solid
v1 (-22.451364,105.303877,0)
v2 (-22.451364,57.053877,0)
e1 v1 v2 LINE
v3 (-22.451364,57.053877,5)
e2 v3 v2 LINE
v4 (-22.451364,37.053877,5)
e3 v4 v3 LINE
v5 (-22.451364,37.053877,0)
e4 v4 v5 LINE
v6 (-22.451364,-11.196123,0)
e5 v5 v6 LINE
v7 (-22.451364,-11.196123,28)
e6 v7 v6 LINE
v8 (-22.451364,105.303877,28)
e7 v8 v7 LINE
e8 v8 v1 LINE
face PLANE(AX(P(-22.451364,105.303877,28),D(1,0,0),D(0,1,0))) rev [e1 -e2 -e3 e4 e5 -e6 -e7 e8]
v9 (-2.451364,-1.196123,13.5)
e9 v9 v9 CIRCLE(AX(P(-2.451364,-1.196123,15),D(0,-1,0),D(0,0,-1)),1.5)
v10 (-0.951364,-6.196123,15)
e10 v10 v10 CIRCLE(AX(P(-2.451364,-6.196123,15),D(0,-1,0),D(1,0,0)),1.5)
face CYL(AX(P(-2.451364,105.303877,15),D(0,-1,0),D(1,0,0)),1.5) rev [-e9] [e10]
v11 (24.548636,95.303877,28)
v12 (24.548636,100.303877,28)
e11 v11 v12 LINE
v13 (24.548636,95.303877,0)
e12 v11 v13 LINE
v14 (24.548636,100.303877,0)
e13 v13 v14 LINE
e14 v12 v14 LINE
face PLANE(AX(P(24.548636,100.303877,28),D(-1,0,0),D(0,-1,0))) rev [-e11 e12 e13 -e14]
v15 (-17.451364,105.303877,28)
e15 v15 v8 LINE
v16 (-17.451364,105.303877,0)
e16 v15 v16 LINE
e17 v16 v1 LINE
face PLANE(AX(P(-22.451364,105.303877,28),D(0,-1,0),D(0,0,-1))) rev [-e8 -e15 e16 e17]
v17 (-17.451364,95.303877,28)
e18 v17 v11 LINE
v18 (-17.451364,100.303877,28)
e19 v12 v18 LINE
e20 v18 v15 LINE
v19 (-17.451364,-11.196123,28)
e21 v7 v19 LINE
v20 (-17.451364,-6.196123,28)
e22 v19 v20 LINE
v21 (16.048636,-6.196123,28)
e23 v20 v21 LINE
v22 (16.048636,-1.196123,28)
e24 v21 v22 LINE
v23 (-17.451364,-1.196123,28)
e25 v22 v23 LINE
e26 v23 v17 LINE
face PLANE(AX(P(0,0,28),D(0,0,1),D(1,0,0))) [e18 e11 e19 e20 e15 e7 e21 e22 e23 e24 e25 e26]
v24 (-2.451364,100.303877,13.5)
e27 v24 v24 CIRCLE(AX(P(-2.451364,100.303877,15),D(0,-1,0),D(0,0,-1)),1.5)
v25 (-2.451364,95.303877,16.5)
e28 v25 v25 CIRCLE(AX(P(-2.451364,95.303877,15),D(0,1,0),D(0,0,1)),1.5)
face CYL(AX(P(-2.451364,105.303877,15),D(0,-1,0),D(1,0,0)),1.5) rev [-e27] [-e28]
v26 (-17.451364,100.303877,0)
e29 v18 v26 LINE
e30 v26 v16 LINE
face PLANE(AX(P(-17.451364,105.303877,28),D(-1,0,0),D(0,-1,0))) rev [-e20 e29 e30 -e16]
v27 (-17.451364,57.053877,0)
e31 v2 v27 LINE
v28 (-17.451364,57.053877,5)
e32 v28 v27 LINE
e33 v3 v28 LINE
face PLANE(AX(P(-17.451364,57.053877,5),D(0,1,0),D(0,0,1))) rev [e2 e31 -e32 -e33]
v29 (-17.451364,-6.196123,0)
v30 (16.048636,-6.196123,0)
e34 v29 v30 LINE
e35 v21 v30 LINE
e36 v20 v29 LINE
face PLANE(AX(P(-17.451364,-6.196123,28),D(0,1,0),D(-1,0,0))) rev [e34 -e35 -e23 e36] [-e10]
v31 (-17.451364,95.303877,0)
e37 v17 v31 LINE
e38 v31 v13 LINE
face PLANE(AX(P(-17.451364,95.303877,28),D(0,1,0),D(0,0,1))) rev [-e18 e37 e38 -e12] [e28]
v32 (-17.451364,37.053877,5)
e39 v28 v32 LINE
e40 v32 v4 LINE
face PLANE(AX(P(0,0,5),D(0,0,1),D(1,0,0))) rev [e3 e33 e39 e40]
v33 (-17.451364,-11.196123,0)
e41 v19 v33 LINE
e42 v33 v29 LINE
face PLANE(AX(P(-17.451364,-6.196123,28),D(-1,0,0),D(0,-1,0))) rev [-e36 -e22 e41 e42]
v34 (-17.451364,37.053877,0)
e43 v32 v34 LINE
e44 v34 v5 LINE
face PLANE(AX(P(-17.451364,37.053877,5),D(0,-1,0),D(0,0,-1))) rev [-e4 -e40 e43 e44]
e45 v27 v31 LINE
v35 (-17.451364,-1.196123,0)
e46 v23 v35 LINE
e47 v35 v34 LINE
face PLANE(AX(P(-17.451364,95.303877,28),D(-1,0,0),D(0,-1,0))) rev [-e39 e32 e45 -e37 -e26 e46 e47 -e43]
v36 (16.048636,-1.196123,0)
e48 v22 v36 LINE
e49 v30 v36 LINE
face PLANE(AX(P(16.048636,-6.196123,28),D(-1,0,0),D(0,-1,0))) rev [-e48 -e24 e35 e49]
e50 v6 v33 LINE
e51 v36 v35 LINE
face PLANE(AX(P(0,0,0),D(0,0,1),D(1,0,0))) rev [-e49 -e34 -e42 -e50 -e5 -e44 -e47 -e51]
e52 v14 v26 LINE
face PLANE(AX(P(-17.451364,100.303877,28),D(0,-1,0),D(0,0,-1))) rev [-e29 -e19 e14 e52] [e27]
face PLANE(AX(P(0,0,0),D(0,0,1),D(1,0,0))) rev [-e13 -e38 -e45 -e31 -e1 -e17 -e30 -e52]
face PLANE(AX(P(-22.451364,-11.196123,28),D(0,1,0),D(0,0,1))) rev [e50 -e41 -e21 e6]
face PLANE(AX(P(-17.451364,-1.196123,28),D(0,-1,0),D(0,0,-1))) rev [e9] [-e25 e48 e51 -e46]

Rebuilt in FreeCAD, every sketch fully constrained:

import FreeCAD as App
import Part
import Sketcher
Q = App.Units.Quantity


def add_polygon(sketch, points):
    """Adds a closed chain of lines whose ends are joined by coincident constraints."""
    first, n = sketch.GeometryCount, len(points)
    for a, b in zip(points, points[1:] + points[:1]):
        sketch.addGeometry(Part.LineSegment(App.Vector(*a, 0), App.Vector(*b, 0)), False)
    for i in range(n):
        sketch.addConstraint(Sketcher.Constraint("Coincident", first + i, 2, first + (i + 1) % n, 1))

doc = App.newDocument("Part")
params = doc.addObject("Spreadsheet::Sheet", "Params")
for row, (alias, value) in enumerate([
    ("sketch1_width", "42 mm"),
    ("sketch1_width2", "5 mm"),
    ("sketch1_width3", "33.5 mm"),
    ("sketch1_height", "96.5 mm"),
    ("pad1_length", "28 mm"),
    ("sketch2_width", "5 mm"),
    ("sketch2_height", "20 mm"),
    ("pocket1_length", "5 mm"),
    ("sketch3_diameter", "3 mm"),
], start=1):
    params.set(f"A{row}", alias)
    params.set(f"B{row}", "=" + value)
    params.setAlias(f"B{row}", alias)

body = doc.addObject("PartDesign::Body", "Body")

# Sketch on XY plane
sketch1 = body.newObject("Sketcher::SketchObject", "Sketch")
sketch1.AttachmentSupport = (doc.getObject("XY_Plane"), [""])
sketch1.MapMode = "FlatFace"
add_polygon(sketch1, [(-17.451364, -11.196123), (-17.451364, -6.196123), (16.048636, -6.196123), (16.048636, -1.196123), (-17.451364, -1.196123), (-17.451364, 95.303877), (24.548636, 95.303877), (24.548636, 100.303877), (-17.451364, 100.303877), (-17.451364, 105.303877), (-22.451364, 105.303877), (-22.451364, -11.196123)])  # lines 0-11
sketch1.addConstraint(Sketcher.Constraint("Vertical", 0))
sketch1.addConstraint(Sketcher.Constraint("Horizontal", 1))
sketch1.addConstraint(Sketcher.Constraint("Vertical", 2))
sketch1.addConstraint(Sketcher.Constraint("Horizontal", 3))
sketch1.addConstraint(Sketcher.Constraint("Vertical", 4))
sketch1.addConstraint(Sketcher.Constraint("Horizontal", 5))
sketch1.addConstraint(Sketcher.Constraint("Vertical", 6))
sketch1.addConstraint(Sketcher.Constraint("Horizontal", 7))
sketch1.addConstraint(Sketcher.Constraint("Vertical", 8))
sketch1.addConstraint(Sketcher.Constraint("Horizontal", 9))
sketch1.addConstraint(Sketcher.Constraint("Vertical", 10))
sketch1.addConstraint(Sketcher.Constraint("Horizontal", 11))
sketch1.addConstraint(Sketcher.Constraint("Vertical", 0, 2, 3, 2))
sketch1.addConstraint(Sketcher.Constraint("Vertical", 4, 2, 7, 2))
sketch1.addConstraint(Sketcher.Constraint("Equal", 11, 0))
sketch1.addConstraint(Sketcher.Constraint("Equal", 0, 2))
sketch1.addConstraint(Sketcher.Constraint("Equal", 2, 6))
sketch1.addConstraint(Sketcher.Constraint("Equal", 6, 8))
sketch1.addConstraint(Sketcher.Constraint("DistanceX", 5, 1, 5, 2, Q("42 mm")))
sketch1.addConstraint(Sketcher.Constraint("DistanceX", 9, 2, 9, 1, Q("5 mm")))
sketch1.addConstraint(Sketcher.Constraint("DistanceX", 1, 1, 1, 2, Q("33.5 mm")))
sketch1.addConstraint(Sketcher.Constraint("DistanceY", 4, 1, 4, 2, Q("96.5 mm")))
sketch1.addConstraint(Sketcher.Constraint("DistanceX", 0, 2, -1, 1, Q("17.451364 mm")))
sketch1.addConstraint(Sketcher.Constraint("DistanceY", 0, 2, -1, 1, Q("6.196123 mm")))
sketch1.setExpression("Constraints[30]", "Params.sketch1_width")
sketch1.setExpression("Constraints[31]", "Params.sketch1_width2")
sketch1.setExpression("Constraints[32]", "Params.sketch1_width3")
sketch1.setExpression("Constraints[33]", "Params.sketch1_height")
pad1 = body.newObject("PartDesign::Pad", "Pad")
pad1.Profile = sketch1
pad1.setExpression("Length", "Params.pad1_length")

# Sketch on XY plane
sketch2 = body.newObject("Sketcher::SketchObject", "Sketch001")
sketch2.AttachmentSupport = (doc.getObject("XY_Plane"), [""])
sketch2.MapMode = "FlatFace"
add_polygon(sketch2, [(-17.451364, 57.053877), (-17.451364, 37.053877), (-22.451364, 37.053877), (-22.451364, 57.053877)])  # lines 0-3
sketch2.addConstraint(Sketcher.Constraint("Vertical", 0))
sketch2.addConstraint(Sketcher.Constraint("Horizontal", 1))
sketch2.addConstraint(Sketcher.Constraint("Vertical", 2))
sketch2.addConstraint(Sketcher.Constraint("Horizontal", 3))
sketch2.addConstraint(Sketcher.Constraint("DistanceX", 1, 2, 1, 1, Q("5 mm")))
sketch2.addConstraint(Sketcher.Constraint("DistanceY", 0, 2, 0, 1, Q("20 mm")))
sketch2.addConstraint(Sketcher.Constraint("DistanceX", 0, 2, -1, 1, Q("17.451364 mm")))
sketch2.addConstraint(Sketcher.Constraint("DistanceY", -1, 1, 0, 2, Q("37.053877 mm")))
sketch2.setExpression("Constraints[8]", "Params.sketch2_width")
sketch2.setExpression("Constraints[9]", "Params.sketch2_height")
pocket1 = body.newObject("PartDesign::Pocket", "Pocket")
pocket1.Profile = sketch2
pocket1.setExpression("Length", "Params.pocket1_length")
pocket1.Reversed = True

# Sketch on XZ plane
sketch3 = body.newObject("Sketcher::SketchObject", "Sketch002")
sketch3.AttachmentSupport = (doc.getObject("XZ_Plane"), [""])
sketch3.MapMode = "FlatFace"
sketch3.AttachmentOffset = App.Placement(App.Vector(0, 0, 6.196123), App.Rotation())
sketch3.addGeometry(Part.Circle(App.Vector(-2.451364, 15, 0), App.Vector(0, 0, 1), 1.5), False)
sketch3.addConstraint(Sketcher.Constraint("Diameter", 0, Q("3 mm")))
sketch3.addConstraint(Sketcher.Constraint("DistanceY", -1, 1, 0, 3, Q("15 mm")))
sketch3.addConstraint(Sketcher.Constraint("DistanceX", 0, 3, -1, 1, Q("2.451364 mm")))
sketch3.setExpression("Constraints[0]", "Params.sketch3_diameter")
pocket2 = body.newObject("PartDesign::Pocket", "Pocket001")
pocket2.Profile = sketch3
pocket2.Type = "ThroughAll"

doc.recompute()
